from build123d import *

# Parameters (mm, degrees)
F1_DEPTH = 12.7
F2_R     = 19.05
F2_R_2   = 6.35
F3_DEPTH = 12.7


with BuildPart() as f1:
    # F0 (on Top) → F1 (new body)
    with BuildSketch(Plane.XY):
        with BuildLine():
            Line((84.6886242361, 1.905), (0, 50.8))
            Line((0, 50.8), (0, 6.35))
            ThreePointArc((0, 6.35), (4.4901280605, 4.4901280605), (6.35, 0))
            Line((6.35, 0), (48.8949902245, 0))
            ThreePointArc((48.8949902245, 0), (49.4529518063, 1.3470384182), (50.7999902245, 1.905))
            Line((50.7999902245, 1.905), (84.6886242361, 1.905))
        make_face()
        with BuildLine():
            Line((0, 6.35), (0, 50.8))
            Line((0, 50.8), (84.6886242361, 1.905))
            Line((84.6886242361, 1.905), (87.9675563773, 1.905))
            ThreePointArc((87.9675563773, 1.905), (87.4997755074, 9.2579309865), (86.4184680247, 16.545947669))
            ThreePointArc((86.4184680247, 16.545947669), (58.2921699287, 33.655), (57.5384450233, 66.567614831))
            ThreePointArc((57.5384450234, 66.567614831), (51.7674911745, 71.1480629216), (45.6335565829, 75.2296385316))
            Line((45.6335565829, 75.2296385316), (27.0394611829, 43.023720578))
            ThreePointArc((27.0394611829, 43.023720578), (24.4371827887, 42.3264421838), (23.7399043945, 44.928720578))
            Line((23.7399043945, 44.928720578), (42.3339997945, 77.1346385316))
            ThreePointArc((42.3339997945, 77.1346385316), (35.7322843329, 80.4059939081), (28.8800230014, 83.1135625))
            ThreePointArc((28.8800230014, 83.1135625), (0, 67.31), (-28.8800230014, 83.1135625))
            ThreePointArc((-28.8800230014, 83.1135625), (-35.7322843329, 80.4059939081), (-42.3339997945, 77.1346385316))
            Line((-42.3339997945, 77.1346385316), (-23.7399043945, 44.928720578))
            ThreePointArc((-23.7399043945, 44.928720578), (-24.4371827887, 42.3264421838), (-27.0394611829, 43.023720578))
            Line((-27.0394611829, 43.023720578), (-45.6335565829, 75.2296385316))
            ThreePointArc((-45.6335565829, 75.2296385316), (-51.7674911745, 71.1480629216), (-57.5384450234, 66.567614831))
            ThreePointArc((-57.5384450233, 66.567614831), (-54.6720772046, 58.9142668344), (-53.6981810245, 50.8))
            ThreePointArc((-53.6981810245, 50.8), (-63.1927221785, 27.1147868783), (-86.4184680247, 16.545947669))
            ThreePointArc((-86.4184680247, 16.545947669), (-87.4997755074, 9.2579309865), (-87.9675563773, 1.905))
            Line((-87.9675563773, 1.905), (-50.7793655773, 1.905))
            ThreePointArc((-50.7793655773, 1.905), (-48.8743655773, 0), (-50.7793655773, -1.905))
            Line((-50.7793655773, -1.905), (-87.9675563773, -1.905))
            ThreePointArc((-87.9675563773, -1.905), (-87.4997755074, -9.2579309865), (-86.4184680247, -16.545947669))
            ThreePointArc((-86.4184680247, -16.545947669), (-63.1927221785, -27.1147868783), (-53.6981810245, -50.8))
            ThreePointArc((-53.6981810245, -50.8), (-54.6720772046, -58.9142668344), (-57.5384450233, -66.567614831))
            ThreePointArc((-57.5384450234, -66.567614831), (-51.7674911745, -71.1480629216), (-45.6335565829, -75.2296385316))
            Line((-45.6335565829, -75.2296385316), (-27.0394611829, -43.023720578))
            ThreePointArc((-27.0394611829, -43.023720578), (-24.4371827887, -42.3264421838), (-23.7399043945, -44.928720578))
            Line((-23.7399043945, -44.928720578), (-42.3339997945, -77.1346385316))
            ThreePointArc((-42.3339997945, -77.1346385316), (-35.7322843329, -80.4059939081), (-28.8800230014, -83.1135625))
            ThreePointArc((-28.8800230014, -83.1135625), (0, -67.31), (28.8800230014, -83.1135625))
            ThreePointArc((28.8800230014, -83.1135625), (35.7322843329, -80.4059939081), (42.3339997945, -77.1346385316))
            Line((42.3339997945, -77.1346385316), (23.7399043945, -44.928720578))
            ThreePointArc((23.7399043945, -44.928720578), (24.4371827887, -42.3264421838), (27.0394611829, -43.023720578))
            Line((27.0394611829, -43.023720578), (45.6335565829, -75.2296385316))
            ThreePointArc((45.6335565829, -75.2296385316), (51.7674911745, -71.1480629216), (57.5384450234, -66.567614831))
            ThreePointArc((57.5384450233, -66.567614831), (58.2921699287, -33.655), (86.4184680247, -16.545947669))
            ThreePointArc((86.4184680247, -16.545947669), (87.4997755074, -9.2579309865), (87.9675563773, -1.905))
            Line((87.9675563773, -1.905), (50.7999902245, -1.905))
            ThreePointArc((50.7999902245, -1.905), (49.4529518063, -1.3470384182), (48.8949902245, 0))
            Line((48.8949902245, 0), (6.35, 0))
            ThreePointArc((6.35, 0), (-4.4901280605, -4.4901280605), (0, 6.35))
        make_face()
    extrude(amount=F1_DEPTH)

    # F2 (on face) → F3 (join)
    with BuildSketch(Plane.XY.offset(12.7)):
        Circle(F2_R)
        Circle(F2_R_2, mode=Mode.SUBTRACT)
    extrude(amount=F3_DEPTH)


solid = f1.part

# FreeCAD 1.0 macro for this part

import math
import FreeCAD as App
import Part
import Sketcher
Q = App.Units.Quantity

doc = App.newDocument("Part")
body = doc.addObject("PartDesign::Body", "Body")

sketch1 = body.newObject("Sketcher::SketchObject", "Sketch")
sketch1.AttachmentSupport = (doc.getObject("XY_Plane"), [""])
sketch1.MapMode = "FlatFace"
sketch1.addGeometry([
    Part.ArcOfCircle(Part.Circle(App.Vector(50.8, 0, 0), App.Vector(0, 0, 1), 1.9), math.radians(90), math.radians(180)),
    Part.LineSegment(App.Vector(50.8, 1.9, 0), App.Vector(88, 1.9, 0)),
    Part.ArcOfCircle(Part.Circle(App.Vector(0, 0, 0), App.Vector(0, 0, 1), 88), math.radians(1.24), math.radians(10.84)),
    Part.ArcOfCircle(Part.Circle(App.Vector(88, 50.8, 0), App.Vector(0, 0, 1), 34.3), math.radians(153), math.radians(267)),
    Part.ArcOfCircle(Part.Circle(App.Vector(0, 0, 0), App.Vector(0, 0, 1), 88), math.radians(49.16), math.radians(58.76)),
    Part.LineSegment(App.Vector(45.6, 75.2, 0), App.Vector(27, 43, 0)),
    Part.ArcOfCircle(Part.Circle(App.Vector(25.4, 44, 0), App.Vector(0, 0, 1), 1.9), math.radians(150), math.radians(330)),
    Part.LineSegment(App.Vector(23.7, 44.9, 0), App.Vector(42.3, 77.1, 0)),
    Part.ArcOfCircle(Part.Circle(App.Vector(0, 0, 0), App.Vector(0, 0, 1), 88), math.radians(61.24), math.radians(70.84)),
    Part.ArcOfCircle(Part.Circle(App.Vector(0, 101.6, 0), App.Vector(0, 0, 1), 34.3), math.radians(-147), math.radians(-33)),
    Part.ArcOfCircle(Part.Circle(App.Vector(0, 0, 0), App.Vector(0, 0, 1), 88), math.radians(109.16), math.radians(118.76)),
    Part.LineSegment(App.Vector(-42.3, 77.1, 0), App.Vector(-23.7, 44.9, 0)),
    Part.ArcOfCircle(Part.Circle(App.Vector(-25.4, 44, 0), App.Vector(0, 0, 1), 1.9), math.radians(-150), math.radians(30)),
    Part.LineSegment(App.Vector(-27, 43, 0), App.Vector(-45.6, 75.2, 0)),
    Part.ArcOfCircle(Part.Circle(App.Vector(0, 0, 0), App.Vector(0, 0, 1), 88), math.radians(121.24), math.radians(130.84)),
    Part.ArcOfCircle(Part.Circle(App.Vector(-88, 50.8, 0), App.Vector(0, 0, 1), 34.3), math.radians(0), math.radians(27)),
    Part.ArcOfCircle(Part.Circle(App.Vector(-88, 50.8, 0), App.Vector(0, 0, 1), 34.3), math.radians(-87), math.radians(0)),
    Part.ArcOfCircle(Part.Circle(App.Vector(0, 0, 0), App.Vector(0, 0, 1), 88), math.radians(169.16), math.radians(178.76)),
    Part.LineSegment(App.Vector(-88, 1.9, 0), App.Vector(-50.8, 1.9, 0)),
    Part.ArcOfCircle(Part.Circle(App.Vector(-50.8, 0, 0), App.Vector(0, 0, 1), 1.9), math.radians(-90), math.radians(90)),
    Part.LineSegment(App.Vector(-50.8, -1.9, 0), App.Vector(-88, -1.9, 0)),
    Part.ArcOfCircle(Part.Circle(App.Vector(0, 0, 0), App.Vector(0, 0, 1), 88), math.radians(-178.76), math.radians(-169.16)),
    Part.ArcOfCircle(Part.Circle(App.Vector(-88, -50.8, 0), App.Vector(0, 0, 1), 34.3), math.radians(0), math.radians(87)),
    Part.ArcOfCircle(Part.Circle(App.Vector(-88, -50.8, 0), App.Vector(0, 0, 1), 34.3), math.radians(-27), math.radians(0)),
    Part.ArcOfCircle(Part.Circle(App.Vector(0, 0, 0), App.Vector(0, 0, 1), 88), math.radians(-130.84), math.radians(-121.24)),
    Part.LineSegment(App.Vector(-45.6, -75.2, 0), App.Vector(-27, -43, 0)),
    Part.ArcOfCircle(Part.Circle(App.Vector(-25.4, -44, 0), App.Vector(0, 0, 1), 1.9), math.radians(-30), math.radians(150)),
    Part.LineSegment(App.Vector(-23.7, -44.9, 0), App.Vector(-42.3, -77.1, 0)),
    Part.ArcOfCircle(Part.Circle(App.Vector(0, 0, 0), App.Vector(0, 0, 1), 88), math.radians(-118.76), math.radians(-109.16)),
    Part.ArcOfCircle(Part.Circle(App.Vector(0, -101.6, 0), App.Vector(0, 0, 1), 34.3), math.radians(33), math.radians(147)),
    Part.ArcOfCircle(Part.Circle(App.Vector(0, 0, 0), App.Vector(0, 0, 1), 88), math.radians(-70.84), math.radians(-61.24)),
    Part.LineSegment(App.Vector(42.3, -77.1, 0), App.Vector(23.7, -44.9, 0)),
    Part.ArcOfCircle(Part.Circle(App.Vector(25.4, -44, 0), App.Vector(0, 0, 1), 1.9), math.radians(30), math.radians(210)),
    Part.LineSegment(App.Vector(27, -43, 0), App.Vector(45.6, -75.2, 0)),
    Part.ArcOfCircle(Part.Circle(App.Vector(0, 0, 0), App.Vector(0, 0, 1), 88), math.radians(-58.76), math.radians(-49.16)),
    Part.ArcOfCircle(Part.Circle(App.Vector(88, -50.8, 0), App.Vector(0, 0, 1), 34.3), math.radians(93), math.radians(207)),
    Part.ArcOfCircle(Part.Circle(App.Vector(0, 0, 0), App.Vector(0, 0, 1), 88), math.radians(-10.84), math.radians(-1.24)),
    Part.LineSegment(App.Vector(88, -1.9, 0), App.Vector(50.8, -1.9, 0)),
    Part.ArcOfCircle(Part.Circle(App.Vector(50.8, 0, 0), App.Vector(0, 0, 1), 1.9), math.radians(180), math.radians(270)),
    Part.ArcOfCircle(Part.Circle(App.Vector(0, 0, 0), App.Vector(0, 0, 1), 6.3), math.radians(0), math.radians(90)),
    Part.ArcOfCircle(Part.Circle(App.Vector(0, 0, 0), App.Vector(0, 0, 1), 6.3), math.radians(90), math.radians(360)),
], False)
sketch1.addConstraint([
    Sketcher.Constraint("Tangent", 0, 1, 1, 1),
    Sketcher.Constraint("Coincident", 1, 2, 2, 1),
    Sketcher.Constraint("Coincident", 2, 2, 3, 2),
    Sketcher.Constraint("Coincident", 3, 1, 4, 1),
    Sketcher.Constraint("Coincident", 4, 2, 5, 1),
    Sketcher.Constraint("Tangent", 5, 2, 6, 2),
    Sketcher.Constraint("Tangent", 6, 1, 7, 1),
    Sketcher.Constraint("Coincident", 7, 2, 8, 1),
    Sketcher.Constraint("Coincident", 8, 2, 9, 2),
    Sketcher.Constraint("Coincident", 9, 1, 10, 1),
    Sketcher.Constraint("Coincident", 10, 2, 11, 1),
    Sketcher.Constraint("Tangent", 11, 2, 12, 2),
    Sketcher.Constraint("Tangent", 12, 1, 13, 1),
    Sketcher.Constraint("Coincident", 13, 2, 14, 1),
    Sketcher.Constraint("Coincident", 14, 2, 15, 2),
    Sketcher.Constraint("Tangent", 15, 1, 16, 2),
    Sketcher.Constraint("Coincident", 16, 1, 17, 1),
    Sketcher.Constraint("Coincident", 17, 2, 18, 1),
    Sketcher.Constraint("Tangent", 18, 2, 19, 2),
    Sketcher.Constraint("Tangent", 19, 1, 20, 1),
    Sketcher.Constraint("Coincident", 20, 2, 21, 1),
    Sketcher.Constraint("Coincident", 21, 2, 22, 2),
    Sketcher.Constraint("Tangent", 22, 1, 23, 2),
    Sketcher.Constraint("Coincident", 23, 1, 24, 1),
    Sketcher.Constraint("Coincident", 24, 2, 25, 1),
    Sketcher.Constraint("Tangent", 25, 2, 26, 2),
    Sketcher.Constraint("Tangent", 26, 1, 27, 1),
    Sketcher.Constraint("Coincident", 27, 2, 28, 1),
    Sketcher.Constraint("Coincident", 28, 2, 29, 2),
    Sketcher.Constraint("Coincident", 29, 1, 30, 1),
    Sketcher.Constraint("Coincident", 30, 2, 31, 1),
    Sketcher.Constraint("Tangent", 31, 2, 32, 2),
    Sketcher.Constraint("Tangent", 32, 1, 33, 1),
    Sketcher.Constraint("Coincident", 33, 2, 34, 1),
    Sketcher.Constraint("Coincident", 34, 2, 35, 2),
    Sketcher.Constraint("Coincident", 35, 1, 36, 1),
    Sketcher.Constraint("Coincident", 36, 2, 37, 1),
    Sketcher.Constraint("Tangent", 37, 2, 38, 2),
    Sketcher.Constraint("Tangent", 38, 1, 0, 2),
    Sketcher.Constraint("Tangent", 39, 1, 40, 2),
    Sketcher.Constraint("Coincident", 40, 1, 39, 2),
    Sketcher.Constraint("Horizontal", 1),
    Sketcher.Constraint("Horizontal", 18),
    Sketcher.Constraint("Horizontal", 20),
    Sketcher.Constraint("Horizontal", 37),
    Sketcher.Constraint("Coincident", 2, 3, -1, 1),
    Sketcher.Constraint("Coincident", 4, 3, -1, 1),
    Sketcher.Constraint("Coincident", 8, 3, -1, 1),
    Sketcher.Constraint("Coincident", 10, 3, -1, 1),
    Sketcher.Constraint("Coincident", 14, 3, -1, 1),
    Sketcher.Constraint("Coincident", 17, 3, -1, 1),
    Sketcher.Constraint("Coincident", 21, 3, -1, 1),
    Sketcher.Constraint("Coincident", 24, 3, -1, 1),
    Sketcher.Constraint("Coincident", 28, 3, -1, 1),
    Sketcher.Constraint("Coincident", 30, 3, -1, 1),
    Sketcher.Constraint("Coincident", 34, 3, -1, 1),
    Sketcher.Constraint("Coincident", 36, 3, -1, 1),
    Sketcher.Constraint("Coincident", 39, 3, -1, 1),
    Sketcher.Constraint("Equal", 2, 4),
    Sketcher.Constraint("Equal", 0, 6),
    Sketcher.Constraint("Equal", 4, 8),
    Sketcher.Constraint("Equal", 3, 9),
    Sketcher.Constraint("Equal", 8, 10),
    Sketcher.Constraint("Equal", 6, 12),
    Sketcher.Constraint("Equal", 10, 14),
    Sketcher.Constraint("Equal", 9, 15),
    Sketcher.Constraint("Equal", 15, 16),
    Sketcher.Constraint("Equal", 14, 17),
    Sketcher.Constraint("Equal", 12, 19),
    Sketcher.Constraint("Equal", 17, 21),
    Sketcher.Constraint("Equal", 16, 22),
    Sketcher.Constraint("Equal", 22, 23),
    Sketcher.Constraint("Equal", 21, 24),
    Sketcher.Constraint("Equal", 19, 26),
    Sketcher.Constraint("Equal", 24, 28),
    Sketcher.Constraint("Equal", 23, 29),
    Sketcher.Constraint("Equal", 28, 30),
    Sketcher.Constraint("Equal", 26, 32),
    Sketcher.Constraint("Equal", 30, 34),
    Sketcher.Constraint("Equal", 29, 35),
    Sketcher.Constraint("Equal", 34, 36),
    Sketcher.Constraint("Equal", 32, 38),
    Sketcher.Constraint("Symmetric", 3, 3, 22, 3, -1, 1),
    Sketcher.Constraint("Symmetric", 6, 3, 26, 3, -1, 1),
    Sketcher.Constraint("Symmetric", 9, 3, 29, 3, -1, 1),
    Sketcher.Constraint("Symmetric", 12, 3, 32, 3, -1, 1),
    Sketcher.Constraint("Symmetric", 15, 3, 35, 3, -1, 1),
    Sketcher.Constraint("Symmetric", 6, 3, 12, 3, -2),
    Sketcher.Constraint("Symmetric", 3, 3, 15, 3, -2),
    Sketcher.Constraint("PointOnObject", 0, 3, -1),
    Sketcher.Constraint("PointOnObject", 9, 3, -2),
    Sketcher.Constraint("PointOnObject", 19, 3, -1),
    Sketcher.Constraint("PointOnObject", 38, 1, -1),
    Sketcher.Constraint("PointOnObject", 39, 1, -1),
    Sketcher.Constraint("PointOnObject", 40, 1, -2),
    Sketcher.Constraint("Parallel", 5, 7),
    Sketcher.Constraint("Parallel", 11, 13),
    Sketcher.Constraint("Parallel", 7, 25),
    Sketcher.Constraint("Parallel", 25, 27),
    Sketcher.Constraint("Parallel", 13, 31),
    Sketcher.Constraint("Parallel", 31, 33),
    Sketcher.Constraint("Horizontal", 7, 2, 10, 2),
    Sketcher.Constraint("Horizontal", 16, 3, 15, 1),
    Sketcher.Constraint("Horizontal", 35, 3, 22, 1),
    Sketcher.Constraint("Equal", 5, 7),
    Sketcher.Constraint("Radius", 3, Q("1.35 in")),
    Sketcher.Constraint("Radius", 39, Q("0.25 in")),
    Sketcher.Constraint("DistanceY", -1, 1, 3, 3, Q("2 in")),
    Sketcher.Constraint("DistanceY", -1, 1, 9, 3, Q("4 in")),
    Sketcher.Constraint("Angle", 5, Q("-120 deg")),
    Sketcher.Constraint("Radius", 0, Q("0.075 in")),
    Sketcher.Constraint("Radius", 2, 87.988181),
    Sketcher.Constraint("DistanceX", 18, 1, 18, 2, 37.188191),
    Sketcher.Constraint("Distance", 5, 37.188191),
    Sketcher.Constraint("DistanceX", 1, 1, 1, 2, 37.167566),
    Sketcher.Constraint("DistanceX", -1, 1, 3, 3, 87.988181),
])
pad1 = body.newObject("PartDesign::Pad", "Pad")
pad1.Profile = sketch1
pad1.Length = Q("0.5 in")

sketch2 = body.newObject("Sketcher::SketchObject", "Sketch001")
sketch2.AttachmentSupport = (doc.getObject("XY_Plane"), [""])
sketch2.MapMode = "FlatFace"
sketch2.AttachmentOffset = App.Placement(App.Vector(0, 0, 0.5 * 25.4), App.Rotation())
sketch2.addGeometry([
    Part.Circle(App.Vector(0, 0, 0), App.Vector(0, 0, 1), 19),
    Part.Circle(App.Vector(0, 0, 0), App.Vector(0, 0, 1), 6),
], False)
sketch2.addConstraint([
    Sketcher.Constraint("Coincident", 0, 3, -1, 1),
    Sketcher.Constraint("Coincident", 1, 3, -1, 1),
    Sketcher.Constraint("Diameter", 0, Q("1.5 in")),
    Sketcher.Constraint("Diameter", 1, Q("0.5 in")),
])
pad2 = body.newObject("PartDesign::Pad", "Pad001")
pad2.Profile = sketch2
pad2.Length = Q("0.5 in")

doc.recompute()
